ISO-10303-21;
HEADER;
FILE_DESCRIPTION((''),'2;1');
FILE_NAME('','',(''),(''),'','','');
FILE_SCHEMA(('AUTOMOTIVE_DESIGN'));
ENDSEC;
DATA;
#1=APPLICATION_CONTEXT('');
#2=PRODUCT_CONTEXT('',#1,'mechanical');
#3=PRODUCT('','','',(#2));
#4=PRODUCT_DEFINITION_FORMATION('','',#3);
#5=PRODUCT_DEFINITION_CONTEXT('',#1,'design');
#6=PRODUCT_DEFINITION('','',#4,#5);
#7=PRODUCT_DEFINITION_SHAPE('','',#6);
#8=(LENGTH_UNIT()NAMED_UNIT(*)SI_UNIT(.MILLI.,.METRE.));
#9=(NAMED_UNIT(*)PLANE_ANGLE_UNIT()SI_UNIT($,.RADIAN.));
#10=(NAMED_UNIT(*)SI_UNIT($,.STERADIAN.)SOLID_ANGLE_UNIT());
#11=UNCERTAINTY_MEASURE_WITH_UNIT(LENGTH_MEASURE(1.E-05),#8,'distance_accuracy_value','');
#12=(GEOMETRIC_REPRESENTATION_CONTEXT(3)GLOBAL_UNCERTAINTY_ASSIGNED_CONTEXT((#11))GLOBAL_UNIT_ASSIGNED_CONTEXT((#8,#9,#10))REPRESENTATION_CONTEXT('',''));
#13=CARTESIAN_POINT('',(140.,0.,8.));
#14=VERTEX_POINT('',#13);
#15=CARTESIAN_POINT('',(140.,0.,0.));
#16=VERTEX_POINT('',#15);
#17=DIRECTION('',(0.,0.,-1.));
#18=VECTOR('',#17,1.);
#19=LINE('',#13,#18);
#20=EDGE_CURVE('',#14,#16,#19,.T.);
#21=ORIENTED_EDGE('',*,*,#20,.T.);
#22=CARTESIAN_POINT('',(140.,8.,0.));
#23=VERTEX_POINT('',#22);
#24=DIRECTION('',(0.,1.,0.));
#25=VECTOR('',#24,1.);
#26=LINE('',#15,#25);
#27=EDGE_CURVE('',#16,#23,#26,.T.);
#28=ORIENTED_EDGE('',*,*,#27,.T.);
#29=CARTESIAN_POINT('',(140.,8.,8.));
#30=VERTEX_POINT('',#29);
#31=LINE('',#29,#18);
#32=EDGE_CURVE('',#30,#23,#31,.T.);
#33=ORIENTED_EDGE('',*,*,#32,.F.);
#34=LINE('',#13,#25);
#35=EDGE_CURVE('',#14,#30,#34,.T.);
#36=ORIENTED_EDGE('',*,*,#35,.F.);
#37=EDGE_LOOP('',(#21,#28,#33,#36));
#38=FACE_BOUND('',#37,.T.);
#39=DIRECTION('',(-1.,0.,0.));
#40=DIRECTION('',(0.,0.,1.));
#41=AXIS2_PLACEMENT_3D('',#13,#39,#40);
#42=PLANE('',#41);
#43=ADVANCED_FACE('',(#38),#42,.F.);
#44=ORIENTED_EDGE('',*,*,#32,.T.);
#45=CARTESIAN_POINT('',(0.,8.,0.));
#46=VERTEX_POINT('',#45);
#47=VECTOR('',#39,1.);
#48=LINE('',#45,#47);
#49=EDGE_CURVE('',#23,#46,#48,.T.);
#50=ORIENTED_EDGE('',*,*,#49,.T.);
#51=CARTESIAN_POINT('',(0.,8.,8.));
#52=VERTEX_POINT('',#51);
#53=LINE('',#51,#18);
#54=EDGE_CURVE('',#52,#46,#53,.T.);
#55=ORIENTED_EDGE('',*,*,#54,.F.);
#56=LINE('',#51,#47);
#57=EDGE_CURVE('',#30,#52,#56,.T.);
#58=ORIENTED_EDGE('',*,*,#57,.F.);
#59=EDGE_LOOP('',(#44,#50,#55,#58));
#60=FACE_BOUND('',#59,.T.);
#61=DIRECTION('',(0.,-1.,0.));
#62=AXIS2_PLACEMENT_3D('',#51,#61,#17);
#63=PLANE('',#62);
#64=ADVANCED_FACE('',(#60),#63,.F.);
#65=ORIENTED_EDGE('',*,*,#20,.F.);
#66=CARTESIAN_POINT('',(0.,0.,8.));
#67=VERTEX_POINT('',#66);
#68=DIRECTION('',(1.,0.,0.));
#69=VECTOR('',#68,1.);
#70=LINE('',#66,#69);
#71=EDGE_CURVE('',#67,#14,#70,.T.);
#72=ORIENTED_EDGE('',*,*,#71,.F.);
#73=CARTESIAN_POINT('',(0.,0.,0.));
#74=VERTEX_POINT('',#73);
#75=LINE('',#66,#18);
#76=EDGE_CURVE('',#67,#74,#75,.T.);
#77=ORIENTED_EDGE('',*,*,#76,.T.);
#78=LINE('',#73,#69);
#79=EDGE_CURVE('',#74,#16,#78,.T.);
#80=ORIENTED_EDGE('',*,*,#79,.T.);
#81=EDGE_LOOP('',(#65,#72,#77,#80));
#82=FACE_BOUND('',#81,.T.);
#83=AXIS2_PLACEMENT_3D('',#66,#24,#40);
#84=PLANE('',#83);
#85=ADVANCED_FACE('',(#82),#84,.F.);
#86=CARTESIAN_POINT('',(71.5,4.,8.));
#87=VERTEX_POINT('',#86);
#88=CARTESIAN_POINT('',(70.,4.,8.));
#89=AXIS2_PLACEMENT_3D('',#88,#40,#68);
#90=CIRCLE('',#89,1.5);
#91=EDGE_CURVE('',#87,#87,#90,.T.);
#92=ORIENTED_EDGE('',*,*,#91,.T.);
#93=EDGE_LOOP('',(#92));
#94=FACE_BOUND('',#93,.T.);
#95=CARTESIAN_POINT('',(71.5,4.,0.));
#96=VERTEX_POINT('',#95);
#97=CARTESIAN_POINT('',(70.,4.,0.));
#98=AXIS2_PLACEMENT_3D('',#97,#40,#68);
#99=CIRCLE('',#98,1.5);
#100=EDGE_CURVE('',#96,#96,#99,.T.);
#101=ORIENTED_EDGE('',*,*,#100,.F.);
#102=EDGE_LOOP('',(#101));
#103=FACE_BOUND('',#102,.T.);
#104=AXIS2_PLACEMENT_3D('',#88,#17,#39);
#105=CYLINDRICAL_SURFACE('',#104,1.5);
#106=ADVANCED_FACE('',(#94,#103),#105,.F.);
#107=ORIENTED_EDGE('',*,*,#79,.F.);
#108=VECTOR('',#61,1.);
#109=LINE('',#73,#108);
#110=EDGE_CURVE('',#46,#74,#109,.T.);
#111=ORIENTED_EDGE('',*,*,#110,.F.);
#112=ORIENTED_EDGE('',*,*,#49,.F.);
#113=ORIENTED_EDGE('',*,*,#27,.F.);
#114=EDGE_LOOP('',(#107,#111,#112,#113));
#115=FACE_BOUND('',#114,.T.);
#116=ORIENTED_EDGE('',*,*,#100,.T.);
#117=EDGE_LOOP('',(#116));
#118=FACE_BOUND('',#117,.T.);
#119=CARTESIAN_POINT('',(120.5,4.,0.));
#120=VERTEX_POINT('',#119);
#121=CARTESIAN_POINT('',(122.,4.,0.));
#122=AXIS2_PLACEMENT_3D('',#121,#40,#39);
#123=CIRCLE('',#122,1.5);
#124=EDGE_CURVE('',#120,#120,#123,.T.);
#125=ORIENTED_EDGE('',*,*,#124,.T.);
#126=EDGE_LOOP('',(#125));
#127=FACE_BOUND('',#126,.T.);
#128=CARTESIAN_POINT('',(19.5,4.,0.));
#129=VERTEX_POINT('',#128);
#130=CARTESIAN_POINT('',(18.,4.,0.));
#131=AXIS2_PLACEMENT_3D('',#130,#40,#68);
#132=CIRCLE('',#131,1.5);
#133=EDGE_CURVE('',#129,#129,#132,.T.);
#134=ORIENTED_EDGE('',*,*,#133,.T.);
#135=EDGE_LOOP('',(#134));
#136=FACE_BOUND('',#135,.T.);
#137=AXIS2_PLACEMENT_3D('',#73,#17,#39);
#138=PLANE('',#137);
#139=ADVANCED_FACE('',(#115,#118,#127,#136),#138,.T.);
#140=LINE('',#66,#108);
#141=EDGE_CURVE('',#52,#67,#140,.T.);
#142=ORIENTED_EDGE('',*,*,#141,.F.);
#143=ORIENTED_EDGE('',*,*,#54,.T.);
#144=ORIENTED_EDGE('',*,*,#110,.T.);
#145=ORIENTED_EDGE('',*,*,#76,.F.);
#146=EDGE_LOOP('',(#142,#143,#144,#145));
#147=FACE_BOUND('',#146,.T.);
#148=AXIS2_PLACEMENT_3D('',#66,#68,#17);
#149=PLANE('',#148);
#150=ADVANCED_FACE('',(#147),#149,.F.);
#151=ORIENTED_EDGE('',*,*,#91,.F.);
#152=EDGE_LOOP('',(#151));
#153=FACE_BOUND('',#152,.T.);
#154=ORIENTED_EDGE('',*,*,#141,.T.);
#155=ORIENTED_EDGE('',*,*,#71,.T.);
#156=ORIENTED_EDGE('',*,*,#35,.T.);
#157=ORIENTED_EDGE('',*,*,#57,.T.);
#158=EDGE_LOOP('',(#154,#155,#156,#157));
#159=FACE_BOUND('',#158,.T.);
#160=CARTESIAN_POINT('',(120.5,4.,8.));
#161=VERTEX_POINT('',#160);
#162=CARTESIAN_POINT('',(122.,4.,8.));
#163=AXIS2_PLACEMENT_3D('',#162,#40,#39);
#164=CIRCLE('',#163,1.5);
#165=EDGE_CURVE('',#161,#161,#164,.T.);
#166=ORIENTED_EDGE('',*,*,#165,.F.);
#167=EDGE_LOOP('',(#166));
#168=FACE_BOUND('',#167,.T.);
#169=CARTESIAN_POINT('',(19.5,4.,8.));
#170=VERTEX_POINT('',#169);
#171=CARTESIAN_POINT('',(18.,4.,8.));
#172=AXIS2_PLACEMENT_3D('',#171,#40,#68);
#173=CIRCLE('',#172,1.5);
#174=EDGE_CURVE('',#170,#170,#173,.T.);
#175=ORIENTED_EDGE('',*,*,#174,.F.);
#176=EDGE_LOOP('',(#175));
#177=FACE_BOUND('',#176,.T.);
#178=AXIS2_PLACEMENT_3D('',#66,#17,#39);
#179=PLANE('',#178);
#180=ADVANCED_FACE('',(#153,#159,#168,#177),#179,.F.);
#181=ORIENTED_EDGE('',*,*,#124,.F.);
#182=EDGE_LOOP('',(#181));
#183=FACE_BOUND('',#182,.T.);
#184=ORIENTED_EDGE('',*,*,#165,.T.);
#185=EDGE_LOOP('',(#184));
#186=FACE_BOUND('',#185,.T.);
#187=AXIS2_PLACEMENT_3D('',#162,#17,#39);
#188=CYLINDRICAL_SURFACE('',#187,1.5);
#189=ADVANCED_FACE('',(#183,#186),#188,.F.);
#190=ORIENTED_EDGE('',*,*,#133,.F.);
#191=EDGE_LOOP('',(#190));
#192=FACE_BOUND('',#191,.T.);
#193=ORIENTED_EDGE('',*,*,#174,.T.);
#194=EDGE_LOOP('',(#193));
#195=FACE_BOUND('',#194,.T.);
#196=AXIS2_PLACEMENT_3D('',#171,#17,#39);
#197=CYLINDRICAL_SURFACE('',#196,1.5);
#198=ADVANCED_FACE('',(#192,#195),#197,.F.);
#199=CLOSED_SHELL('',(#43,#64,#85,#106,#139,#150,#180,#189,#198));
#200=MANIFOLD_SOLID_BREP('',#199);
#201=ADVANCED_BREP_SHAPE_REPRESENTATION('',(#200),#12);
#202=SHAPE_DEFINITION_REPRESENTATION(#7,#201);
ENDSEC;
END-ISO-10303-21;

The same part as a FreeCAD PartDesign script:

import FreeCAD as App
import Part
import Sketcher

doc = App.newDocument("Part")
body = doc.addObject("PartDesign::Body", "Body")

# Sketch on XY plane
sketch1 = body.newObject("Sketcher::SketchObject", "Sketch")
sketch1.AttachmentSupport = (doc.getObject("XY_Plane"), [""])
sketch1.MapMode = "FlatFace"
sketch1.addGeometry(Part.LineSegment(App.Vector(0, 8, 0), App.Vector(0, 0, 0)), False)
sketch1.addGeometry(Part.LineSegment(App.Vector(0, 0, 0), App.Vector(140, 0, 0)), False)
sketch1.addGeometry(Part.LineSegment(App.Vector(140, 0, 0), App.Vector(140, 8, 0)), False)
sketch1.addGeometry(Part.LineSegment(App.Vector(140, 8, 0), App.Vector(0, 8, 0)), False)
sketch1.addGeometry(Part.Circle(App.Vector(18, 4, 0), App.Vector(0, 0, 1), 1.5), False)
sketch1.addGeometry(Part.Circle(App.Vector(70, 4, 0), App.Vector(0, 0, 1), 1.5), False)
sketch1.addGeometry(Part.Circle(App.Vector(122, 4, 0), App.Vector(0, 0, 1), 1.5), False)
sketch1.addConstraint(Sketcher.Constraint("Coincident", 0, 2, 1, 1))
sketch1.addConstraint(Sketcher.Constraint("Coincident", 1, 2, 2, 1))
sketch1.addConstraint(Sketcher.Constraint("Coincident", 2, 2, 3, 1))
sketch1.addConstraint(Sketcher.Constraint("Coincident", 3, 2, 0, 1))
sketch1.addConstraint(Sketcher.Constraint("Vertical", 0))
sketch1.addConstraint(Sketcher.Constraint("Horizontal", 1))
sketch1.addConstraint(Sketcher.Constraint("Vertical", 2))
sketch1.addConstraint(Sketcher.Constraint("Horizontal", 3))
sketch1.addConstraint(Sketcher.Constraint("Coincident", 0, 2, -1, 1))
sketch1.addConstraint(Sketcher.Constraint("Equal", 4, 5))
sketch1.addConstraint(Sketcher.Constraint("Equal", 5, 6))
sketch1.addConstraint(Sketcher.Constraint("Horizontal", 4, 3, 5, 3))
sketch1.addConstraint(Sketcher.Constraint("Horizontal", 5, 3, 6, 3))
sketch1.addConstraint(Sketcher.Constraint("Diameter", 4, 3.0))
sketch1.addConstraint(Sketcher.Constraint("DistanceX", 1, 1, 1, 2, 140.0))
sketch1.addConstraint(Sketcher.Constraint("DistanceY", 0, 2, 0, 1, 8.0))
sketch1.addConstraint(Sketcher.Constraint("DistanceX", -1, 1, 4, 3, 18.0))
sketch1.addConstraint(Sketcher.Constraint("DistanceY", -1, 1, 4, 3, 4.0))
sketch1.addConstraint(Sketcher.Constraint("DistanceX", -1, 1, 5, 3, 70.0))
sketch1.addConstraint(Sketcher.Constraint("DistanceX", -1, 1, 6, 3, 122.0))
pad1 = body.newObject("PartDesign::Pad", "Pad")
pad1.Profile = sketch1
pad1.Length = 8

doc.recompute()
